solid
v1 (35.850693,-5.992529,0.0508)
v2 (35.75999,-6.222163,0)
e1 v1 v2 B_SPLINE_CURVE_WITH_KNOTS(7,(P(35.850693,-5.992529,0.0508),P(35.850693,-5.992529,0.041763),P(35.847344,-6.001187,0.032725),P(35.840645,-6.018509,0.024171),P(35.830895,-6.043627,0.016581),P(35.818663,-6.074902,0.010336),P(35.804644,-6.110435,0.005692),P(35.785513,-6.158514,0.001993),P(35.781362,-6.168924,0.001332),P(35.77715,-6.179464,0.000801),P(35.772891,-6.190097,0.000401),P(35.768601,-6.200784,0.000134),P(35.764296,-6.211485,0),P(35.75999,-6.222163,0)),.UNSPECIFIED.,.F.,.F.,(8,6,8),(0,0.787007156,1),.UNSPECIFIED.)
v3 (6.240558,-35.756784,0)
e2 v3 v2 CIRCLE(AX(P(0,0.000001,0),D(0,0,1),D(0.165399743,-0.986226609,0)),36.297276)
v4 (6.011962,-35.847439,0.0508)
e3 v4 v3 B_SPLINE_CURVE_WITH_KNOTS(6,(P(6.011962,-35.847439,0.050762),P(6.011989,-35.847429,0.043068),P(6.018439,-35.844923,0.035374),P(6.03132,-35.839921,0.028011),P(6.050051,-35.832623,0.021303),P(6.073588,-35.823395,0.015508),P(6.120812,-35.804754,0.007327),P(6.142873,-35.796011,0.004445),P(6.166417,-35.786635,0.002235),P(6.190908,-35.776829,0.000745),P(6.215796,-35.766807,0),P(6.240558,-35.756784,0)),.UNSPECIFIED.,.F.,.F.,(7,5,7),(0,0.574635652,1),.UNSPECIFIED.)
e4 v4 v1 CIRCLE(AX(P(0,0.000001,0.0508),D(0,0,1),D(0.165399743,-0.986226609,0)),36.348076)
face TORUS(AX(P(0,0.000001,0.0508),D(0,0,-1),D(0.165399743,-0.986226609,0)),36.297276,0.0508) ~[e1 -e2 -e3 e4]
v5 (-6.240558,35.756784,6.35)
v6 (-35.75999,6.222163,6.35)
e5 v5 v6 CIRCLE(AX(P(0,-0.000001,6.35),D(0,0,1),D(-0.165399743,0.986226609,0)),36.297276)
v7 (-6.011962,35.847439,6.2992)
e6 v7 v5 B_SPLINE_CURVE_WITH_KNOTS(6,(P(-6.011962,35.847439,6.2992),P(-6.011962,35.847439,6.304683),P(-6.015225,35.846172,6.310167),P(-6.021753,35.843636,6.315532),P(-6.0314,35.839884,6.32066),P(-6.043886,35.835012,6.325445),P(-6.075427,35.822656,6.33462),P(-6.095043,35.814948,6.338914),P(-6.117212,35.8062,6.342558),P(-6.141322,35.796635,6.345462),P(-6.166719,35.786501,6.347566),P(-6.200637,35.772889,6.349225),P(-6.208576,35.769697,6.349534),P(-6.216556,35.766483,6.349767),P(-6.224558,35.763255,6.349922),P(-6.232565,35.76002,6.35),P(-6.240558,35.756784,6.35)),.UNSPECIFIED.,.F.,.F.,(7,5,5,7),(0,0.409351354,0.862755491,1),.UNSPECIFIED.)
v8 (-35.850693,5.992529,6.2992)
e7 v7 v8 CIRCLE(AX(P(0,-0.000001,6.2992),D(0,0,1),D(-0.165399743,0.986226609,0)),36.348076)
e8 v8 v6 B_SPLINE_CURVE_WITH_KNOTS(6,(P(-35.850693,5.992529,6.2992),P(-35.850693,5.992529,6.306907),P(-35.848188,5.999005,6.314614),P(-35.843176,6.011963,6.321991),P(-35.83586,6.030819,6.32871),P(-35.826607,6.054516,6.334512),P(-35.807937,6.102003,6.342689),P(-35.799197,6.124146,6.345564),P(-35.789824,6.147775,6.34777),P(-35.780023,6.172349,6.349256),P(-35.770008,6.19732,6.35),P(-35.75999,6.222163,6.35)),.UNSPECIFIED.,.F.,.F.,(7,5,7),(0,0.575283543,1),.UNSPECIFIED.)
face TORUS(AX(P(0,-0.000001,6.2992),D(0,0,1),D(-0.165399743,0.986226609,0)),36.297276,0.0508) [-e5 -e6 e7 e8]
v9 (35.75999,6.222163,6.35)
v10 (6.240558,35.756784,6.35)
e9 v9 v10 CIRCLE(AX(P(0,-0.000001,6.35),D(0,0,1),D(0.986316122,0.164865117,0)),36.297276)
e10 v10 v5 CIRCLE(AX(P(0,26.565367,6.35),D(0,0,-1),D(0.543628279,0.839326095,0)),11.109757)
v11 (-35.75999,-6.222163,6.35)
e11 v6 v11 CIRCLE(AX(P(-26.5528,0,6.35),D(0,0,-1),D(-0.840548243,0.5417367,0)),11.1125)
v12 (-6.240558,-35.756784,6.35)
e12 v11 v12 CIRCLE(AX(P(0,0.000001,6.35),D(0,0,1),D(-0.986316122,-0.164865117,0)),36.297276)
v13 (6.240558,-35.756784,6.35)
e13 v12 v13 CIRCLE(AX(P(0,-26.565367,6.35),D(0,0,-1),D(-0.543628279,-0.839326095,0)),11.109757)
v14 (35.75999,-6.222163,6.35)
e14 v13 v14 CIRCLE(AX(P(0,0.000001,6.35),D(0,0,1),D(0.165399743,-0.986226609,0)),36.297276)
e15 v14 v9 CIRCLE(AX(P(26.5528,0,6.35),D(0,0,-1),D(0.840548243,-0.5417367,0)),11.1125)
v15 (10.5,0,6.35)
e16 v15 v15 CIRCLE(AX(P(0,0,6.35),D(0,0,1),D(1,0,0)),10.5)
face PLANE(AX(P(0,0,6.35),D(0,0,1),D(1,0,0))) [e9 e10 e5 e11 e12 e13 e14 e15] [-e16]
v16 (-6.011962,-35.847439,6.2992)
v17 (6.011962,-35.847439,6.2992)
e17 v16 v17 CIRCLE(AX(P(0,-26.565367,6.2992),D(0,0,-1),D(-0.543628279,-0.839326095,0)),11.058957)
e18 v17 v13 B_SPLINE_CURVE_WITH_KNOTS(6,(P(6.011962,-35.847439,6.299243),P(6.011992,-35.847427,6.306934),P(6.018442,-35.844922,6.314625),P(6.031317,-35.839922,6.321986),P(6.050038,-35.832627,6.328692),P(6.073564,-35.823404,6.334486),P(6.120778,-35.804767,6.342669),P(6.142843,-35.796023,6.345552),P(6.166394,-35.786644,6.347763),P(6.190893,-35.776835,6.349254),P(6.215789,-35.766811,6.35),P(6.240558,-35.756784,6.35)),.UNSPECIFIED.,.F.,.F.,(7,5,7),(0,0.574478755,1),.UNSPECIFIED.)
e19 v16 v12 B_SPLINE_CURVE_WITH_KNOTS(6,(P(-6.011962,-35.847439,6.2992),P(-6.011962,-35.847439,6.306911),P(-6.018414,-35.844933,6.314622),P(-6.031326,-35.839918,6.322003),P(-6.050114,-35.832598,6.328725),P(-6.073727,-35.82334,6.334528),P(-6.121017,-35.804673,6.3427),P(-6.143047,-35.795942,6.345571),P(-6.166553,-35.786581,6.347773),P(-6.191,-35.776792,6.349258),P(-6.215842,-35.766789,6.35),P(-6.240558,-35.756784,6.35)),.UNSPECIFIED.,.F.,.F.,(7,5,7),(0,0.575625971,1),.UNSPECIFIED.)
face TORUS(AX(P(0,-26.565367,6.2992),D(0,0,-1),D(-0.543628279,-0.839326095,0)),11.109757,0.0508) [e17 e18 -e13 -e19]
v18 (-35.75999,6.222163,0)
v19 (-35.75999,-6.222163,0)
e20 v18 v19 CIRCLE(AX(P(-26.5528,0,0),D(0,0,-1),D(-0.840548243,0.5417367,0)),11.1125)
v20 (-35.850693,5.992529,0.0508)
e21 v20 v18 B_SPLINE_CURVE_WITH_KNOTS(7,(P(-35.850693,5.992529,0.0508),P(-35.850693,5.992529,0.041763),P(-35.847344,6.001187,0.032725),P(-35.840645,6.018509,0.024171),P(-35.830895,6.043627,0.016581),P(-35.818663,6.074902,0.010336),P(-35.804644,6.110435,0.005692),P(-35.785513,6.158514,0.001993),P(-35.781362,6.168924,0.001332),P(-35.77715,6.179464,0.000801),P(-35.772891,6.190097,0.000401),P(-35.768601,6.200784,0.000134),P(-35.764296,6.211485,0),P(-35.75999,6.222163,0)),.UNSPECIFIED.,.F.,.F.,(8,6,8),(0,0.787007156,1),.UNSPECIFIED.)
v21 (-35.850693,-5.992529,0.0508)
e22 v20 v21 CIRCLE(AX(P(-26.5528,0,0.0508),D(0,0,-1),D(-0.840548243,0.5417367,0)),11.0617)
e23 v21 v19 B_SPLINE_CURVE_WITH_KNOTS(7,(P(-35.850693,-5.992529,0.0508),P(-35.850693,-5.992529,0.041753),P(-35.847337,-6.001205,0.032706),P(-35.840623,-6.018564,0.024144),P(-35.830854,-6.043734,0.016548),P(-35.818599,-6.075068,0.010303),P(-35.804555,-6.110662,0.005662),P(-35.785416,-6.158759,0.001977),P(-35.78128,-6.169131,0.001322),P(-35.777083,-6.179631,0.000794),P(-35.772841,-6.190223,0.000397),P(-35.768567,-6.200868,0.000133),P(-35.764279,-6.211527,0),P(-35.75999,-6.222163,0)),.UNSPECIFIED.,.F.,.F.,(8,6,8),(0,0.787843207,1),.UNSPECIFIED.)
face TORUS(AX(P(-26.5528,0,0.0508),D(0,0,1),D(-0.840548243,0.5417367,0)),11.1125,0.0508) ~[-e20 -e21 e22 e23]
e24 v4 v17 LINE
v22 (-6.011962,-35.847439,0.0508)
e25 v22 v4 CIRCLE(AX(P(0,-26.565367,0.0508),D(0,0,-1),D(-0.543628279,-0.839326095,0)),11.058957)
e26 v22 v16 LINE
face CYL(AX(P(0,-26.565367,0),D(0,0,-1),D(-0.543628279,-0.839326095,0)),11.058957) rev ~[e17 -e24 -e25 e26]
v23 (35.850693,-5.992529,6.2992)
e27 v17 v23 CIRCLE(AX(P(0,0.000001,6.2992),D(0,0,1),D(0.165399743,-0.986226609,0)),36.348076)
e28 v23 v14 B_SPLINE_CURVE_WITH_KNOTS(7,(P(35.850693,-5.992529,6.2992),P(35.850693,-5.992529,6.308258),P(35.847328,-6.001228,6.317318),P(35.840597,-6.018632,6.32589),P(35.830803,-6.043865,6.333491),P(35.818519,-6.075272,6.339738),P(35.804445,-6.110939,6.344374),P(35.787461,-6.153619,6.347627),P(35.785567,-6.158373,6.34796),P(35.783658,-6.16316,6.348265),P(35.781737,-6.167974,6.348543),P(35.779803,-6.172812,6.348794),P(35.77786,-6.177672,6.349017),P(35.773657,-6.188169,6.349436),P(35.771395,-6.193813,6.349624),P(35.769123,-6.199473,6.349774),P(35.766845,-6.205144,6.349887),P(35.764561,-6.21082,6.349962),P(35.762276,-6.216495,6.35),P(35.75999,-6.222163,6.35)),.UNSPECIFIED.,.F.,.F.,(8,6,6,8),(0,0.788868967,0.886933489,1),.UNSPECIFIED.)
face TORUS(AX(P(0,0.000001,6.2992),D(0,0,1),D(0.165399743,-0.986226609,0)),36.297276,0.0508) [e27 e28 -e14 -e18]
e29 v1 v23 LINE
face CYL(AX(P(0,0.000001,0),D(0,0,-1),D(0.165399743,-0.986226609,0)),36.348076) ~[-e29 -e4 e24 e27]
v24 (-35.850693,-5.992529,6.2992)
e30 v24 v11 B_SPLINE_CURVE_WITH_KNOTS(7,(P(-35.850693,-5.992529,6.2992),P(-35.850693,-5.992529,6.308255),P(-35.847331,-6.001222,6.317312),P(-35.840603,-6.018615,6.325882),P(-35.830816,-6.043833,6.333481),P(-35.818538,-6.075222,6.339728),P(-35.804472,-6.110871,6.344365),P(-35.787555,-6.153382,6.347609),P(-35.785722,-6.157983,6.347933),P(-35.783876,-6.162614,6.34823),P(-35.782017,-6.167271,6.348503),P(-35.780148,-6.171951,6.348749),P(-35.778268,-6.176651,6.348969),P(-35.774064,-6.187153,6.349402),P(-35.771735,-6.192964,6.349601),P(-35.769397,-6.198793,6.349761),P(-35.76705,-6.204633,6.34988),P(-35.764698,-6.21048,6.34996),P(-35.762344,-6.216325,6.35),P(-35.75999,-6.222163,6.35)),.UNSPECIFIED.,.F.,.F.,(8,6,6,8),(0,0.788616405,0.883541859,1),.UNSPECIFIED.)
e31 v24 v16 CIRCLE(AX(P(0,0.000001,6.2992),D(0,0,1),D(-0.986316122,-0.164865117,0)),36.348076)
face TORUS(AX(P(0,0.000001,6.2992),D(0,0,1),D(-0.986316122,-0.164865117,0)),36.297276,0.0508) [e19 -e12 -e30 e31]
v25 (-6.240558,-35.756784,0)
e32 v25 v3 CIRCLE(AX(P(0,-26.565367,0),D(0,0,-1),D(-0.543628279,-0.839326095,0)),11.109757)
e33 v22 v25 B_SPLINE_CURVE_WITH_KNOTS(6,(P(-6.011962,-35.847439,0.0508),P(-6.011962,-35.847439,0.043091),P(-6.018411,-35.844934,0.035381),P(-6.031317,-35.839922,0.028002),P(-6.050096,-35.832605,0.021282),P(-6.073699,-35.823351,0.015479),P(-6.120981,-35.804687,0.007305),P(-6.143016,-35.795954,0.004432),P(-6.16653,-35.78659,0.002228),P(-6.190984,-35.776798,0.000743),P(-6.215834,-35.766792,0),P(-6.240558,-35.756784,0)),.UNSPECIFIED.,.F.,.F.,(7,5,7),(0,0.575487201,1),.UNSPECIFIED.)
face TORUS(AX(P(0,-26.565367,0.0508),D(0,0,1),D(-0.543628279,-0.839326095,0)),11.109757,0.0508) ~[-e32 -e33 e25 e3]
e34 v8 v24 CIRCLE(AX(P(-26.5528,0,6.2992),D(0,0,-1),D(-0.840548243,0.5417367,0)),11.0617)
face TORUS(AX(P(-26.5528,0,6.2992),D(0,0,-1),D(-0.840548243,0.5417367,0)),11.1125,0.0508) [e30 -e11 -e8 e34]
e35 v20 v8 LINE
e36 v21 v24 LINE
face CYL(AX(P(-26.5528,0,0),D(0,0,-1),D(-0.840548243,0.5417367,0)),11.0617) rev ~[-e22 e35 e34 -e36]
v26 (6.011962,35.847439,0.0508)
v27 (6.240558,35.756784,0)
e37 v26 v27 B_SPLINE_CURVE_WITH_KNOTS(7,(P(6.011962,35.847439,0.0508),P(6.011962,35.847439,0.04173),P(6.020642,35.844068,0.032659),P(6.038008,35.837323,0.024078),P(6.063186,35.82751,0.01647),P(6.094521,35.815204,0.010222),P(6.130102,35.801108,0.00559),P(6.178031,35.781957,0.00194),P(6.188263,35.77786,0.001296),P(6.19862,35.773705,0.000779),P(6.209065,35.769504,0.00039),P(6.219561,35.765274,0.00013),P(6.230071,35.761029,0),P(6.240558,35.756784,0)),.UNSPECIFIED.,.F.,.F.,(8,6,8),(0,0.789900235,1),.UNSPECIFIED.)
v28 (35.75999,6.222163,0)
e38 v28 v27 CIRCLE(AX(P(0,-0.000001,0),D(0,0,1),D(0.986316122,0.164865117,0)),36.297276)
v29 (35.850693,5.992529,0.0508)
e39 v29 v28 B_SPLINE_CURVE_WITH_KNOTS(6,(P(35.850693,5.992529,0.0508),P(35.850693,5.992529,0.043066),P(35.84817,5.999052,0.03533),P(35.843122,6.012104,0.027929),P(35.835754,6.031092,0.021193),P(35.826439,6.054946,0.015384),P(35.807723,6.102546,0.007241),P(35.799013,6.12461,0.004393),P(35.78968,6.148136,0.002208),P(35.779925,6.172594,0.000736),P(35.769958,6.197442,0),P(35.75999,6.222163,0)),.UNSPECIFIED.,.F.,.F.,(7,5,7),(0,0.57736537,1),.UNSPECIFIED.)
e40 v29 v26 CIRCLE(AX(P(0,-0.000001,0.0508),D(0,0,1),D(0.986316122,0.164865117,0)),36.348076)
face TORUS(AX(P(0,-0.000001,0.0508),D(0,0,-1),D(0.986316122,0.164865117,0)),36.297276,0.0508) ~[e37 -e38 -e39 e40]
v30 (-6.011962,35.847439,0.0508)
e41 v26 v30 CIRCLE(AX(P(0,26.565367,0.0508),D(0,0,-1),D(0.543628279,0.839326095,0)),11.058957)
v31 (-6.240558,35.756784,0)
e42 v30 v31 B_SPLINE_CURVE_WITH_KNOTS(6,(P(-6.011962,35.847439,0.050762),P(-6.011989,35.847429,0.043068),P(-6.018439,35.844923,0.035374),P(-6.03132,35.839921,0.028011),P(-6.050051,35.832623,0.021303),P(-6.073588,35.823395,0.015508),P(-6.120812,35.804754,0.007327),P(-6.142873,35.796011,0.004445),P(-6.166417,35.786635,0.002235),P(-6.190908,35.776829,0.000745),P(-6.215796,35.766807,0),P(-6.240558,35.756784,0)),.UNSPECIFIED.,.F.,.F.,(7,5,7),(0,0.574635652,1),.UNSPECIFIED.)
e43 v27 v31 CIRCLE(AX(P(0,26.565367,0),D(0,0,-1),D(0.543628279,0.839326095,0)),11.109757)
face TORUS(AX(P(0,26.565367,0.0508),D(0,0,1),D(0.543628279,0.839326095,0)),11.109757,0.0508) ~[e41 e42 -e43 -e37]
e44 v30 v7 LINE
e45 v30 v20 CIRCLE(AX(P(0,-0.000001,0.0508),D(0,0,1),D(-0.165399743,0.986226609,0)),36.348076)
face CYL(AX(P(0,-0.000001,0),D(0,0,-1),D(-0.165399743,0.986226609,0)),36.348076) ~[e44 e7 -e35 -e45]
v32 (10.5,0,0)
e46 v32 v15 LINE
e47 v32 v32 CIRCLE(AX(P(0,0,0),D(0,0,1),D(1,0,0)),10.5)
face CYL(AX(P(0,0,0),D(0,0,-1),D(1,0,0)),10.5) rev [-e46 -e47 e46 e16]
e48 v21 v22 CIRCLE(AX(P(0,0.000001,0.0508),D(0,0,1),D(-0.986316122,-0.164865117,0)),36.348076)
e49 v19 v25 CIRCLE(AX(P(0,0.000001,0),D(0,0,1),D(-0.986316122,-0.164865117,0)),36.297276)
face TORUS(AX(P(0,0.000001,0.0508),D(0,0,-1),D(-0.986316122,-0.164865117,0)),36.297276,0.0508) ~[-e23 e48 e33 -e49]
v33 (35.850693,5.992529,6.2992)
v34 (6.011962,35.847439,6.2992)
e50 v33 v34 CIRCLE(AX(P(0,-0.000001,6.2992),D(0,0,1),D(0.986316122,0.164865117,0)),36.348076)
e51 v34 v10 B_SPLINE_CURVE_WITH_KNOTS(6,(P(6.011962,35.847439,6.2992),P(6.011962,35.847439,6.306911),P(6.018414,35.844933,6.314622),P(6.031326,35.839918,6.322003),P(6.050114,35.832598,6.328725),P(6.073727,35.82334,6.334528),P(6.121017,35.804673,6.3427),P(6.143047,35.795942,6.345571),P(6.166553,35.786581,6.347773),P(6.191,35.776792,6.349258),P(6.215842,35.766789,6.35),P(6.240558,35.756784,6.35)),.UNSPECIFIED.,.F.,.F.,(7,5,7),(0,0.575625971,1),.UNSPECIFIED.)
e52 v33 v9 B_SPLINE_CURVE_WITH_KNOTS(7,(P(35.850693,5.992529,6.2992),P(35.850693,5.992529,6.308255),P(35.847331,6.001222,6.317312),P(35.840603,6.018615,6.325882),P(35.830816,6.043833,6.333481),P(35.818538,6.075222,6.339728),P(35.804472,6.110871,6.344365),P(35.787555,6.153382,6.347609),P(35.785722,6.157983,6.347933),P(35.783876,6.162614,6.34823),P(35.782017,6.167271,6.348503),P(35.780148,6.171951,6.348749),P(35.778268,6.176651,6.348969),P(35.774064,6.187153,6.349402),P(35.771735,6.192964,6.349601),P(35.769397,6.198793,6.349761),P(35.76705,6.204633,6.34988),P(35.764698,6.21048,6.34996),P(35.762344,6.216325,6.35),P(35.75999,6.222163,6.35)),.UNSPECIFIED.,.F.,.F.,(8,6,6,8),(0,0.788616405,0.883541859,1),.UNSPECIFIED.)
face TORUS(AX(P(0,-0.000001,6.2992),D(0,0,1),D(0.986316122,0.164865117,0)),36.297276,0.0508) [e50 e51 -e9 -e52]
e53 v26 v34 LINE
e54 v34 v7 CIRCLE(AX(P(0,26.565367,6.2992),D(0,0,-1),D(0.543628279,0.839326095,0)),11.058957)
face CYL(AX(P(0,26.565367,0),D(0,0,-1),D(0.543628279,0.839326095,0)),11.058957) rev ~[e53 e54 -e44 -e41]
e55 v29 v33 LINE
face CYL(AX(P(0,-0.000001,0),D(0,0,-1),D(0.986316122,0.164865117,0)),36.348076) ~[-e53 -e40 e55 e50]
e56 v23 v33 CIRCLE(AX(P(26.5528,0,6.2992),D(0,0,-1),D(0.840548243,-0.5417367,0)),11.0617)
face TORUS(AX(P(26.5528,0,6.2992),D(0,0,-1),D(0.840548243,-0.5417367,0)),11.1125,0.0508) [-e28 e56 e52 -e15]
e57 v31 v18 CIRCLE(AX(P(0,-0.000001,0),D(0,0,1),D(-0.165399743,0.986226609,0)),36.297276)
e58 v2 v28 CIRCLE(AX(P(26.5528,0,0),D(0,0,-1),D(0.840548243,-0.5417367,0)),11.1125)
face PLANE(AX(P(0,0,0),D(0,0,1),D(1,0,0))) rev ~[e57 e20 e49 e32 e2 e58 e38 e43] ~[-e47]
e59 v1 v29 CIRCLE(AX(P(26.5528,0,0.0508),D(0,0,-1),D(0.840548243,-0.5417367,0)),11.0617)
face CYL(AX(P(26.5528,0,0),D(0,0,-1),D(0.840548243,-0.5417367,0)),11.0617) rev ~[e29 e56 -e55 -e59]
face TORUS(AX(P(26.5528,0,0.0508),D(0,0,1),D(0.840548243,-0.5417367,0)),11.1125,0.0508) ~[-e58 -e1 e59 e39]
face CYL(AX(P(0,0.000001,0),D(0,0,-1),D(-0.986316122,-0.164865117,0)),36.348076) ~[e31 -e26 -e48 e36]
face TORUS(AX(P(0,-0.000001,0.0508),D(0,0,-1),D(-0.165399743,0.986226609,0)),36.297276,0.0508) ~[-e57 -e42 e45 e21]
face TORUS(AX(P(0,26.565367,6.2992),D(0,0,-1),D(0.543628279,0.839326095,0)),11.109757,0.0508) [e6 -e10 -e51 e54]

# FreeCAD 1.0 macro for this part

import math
import FreeCAD as App
import Part
import Sketcher

V = App.Vector
Q = App.Units.Quantity


def edges_at(feature, points):
    """Names of the edges that pass closest to the given points."""
    edges = feature.Shape.Edges
    near = lambda p: min(range(len(edges)), key=lambda i: edges[i].distToShape(Part.Vertex(*p))[0])
    return sorted({f"Edge{near(p) + 1}" for p in points})

doc = App.newDocument("Part")
body = doc.addObject("PartDesign::Body", "Body")

sketch1 = doc.addObject("Sketcher::SketchObject", "Sketch")
body.addObject(sketch1)
sketch1.AttachmentSupport = (doc.XY_Plane, [""])
sketch1.MapMode = "FlatFace"
sketch1.addGeometry(Part.ArcOfCircle(Part.Circle(V(-26.5528, 0, 0), V(0, 0, 1), 11.0617), math.radians(-147.198058), math.radians(147.198058)), False)
sketch1.addGeometry(Part.ArcOfCircle(Part.Circle(V(0, 0.000001, 0), V(0, 0, 1), 36.348076), math.radians(-170.510601), math.radians(-99.520457)), False)
sketch1.addGeometry(Part.ArcOfCircle(Part.Circle(V(0, -26.565367, 0), V(0, 0, 1), 11.058957), math.radians(-57.069025), math.radians(237.069025)), False)
sketch1.addGeometry(Part.ArcOfCircle(Part.Circle(V(0, 0.000001, 0), V(0, 0, 1), 36.348076), math.radians(-80.479543), math.radians(-9.489399)), False)
sketch1.addGeometry(Part.ArcOfCircle(Part.Circle(V(26.5528, 0, 0), V(0, 0, 1), 11.0617), math.radians(32.801942), math.radians(327.198058)), False)
sketch1.addGeometry(Part.ArcOfCircle(Part.Circle(V(0, -0.000001, 0), V(0, 0, 1), 36.348076), math.radians(9.489399), math.radians(80.479543)), False)
sketch1.addGeometry(Part.ArcOfCircle(Part.Circle(V(0, 26.565367, 0), V(0, 0, 1), 11.058957), math.radians(122.930975), math.radians(417.069025)), False)
sketch1.addGeometry(Part.ArcOfCircle(Part.Circle(V(0, -0.000001, 0), V(0, 0, 1), 36.348076), math.radians(99.520457), math.radians(170.510601)), False)
sketch1.addGeometry(Part.Circle(V(0, 0, 0), V(0, 0, 1), 10.5), False)
sketch1.addConstraint(Sketcher.Constraint("Coincident", 0, 1, 1, 1))
sketch1.addConstraint(Sketcher.Constraint("Coincident", 1, 2, 2, 2))
sketch1.addConstraint(Sketcher.Constraint("Coincident", 2, 1, 3, 1))
sketch1.addConstraint(Sketcher.Constraint("Coincident", 3, 2, 4, 2))
sketch1.addConstraint(Sketcher.Constraint("Coincident", 4, 1, 5, 1))
sketch1.addConstraint(Sketcher.Constraint("Coincident", 5, 2, 6, 2))
sketch1.addConstraint(Sketcher.Constraint("Coincident", 6, 1, 7, 1))
sketch1.addConstraint(Sketcher.Constraint("Coincident", 7, 2, 0, 2))
sketch1.addConstraint(Sketcher.Constraint("Coincident", 1, 3, -1, 1))
sketch1.addConstraint(Sketcher.Constraint("Coincident", 3, 3, -1, 1))
sketch1.addConstraint(Sketcher.Constraint("Coincident", 5, 3, -1, 1))
sketch1.addConstraint(Sketcher.Constraint("Coincident", 7, 3, -1, 1))
sketch1.addConstraint(Sketcher.Constraint("Coincident", 8, 3, -1, 1))
sketch1.addConstraint(Sketcher.Constraint("Equal", 1, 3))
sketch1.addConstraint(Sketcher.Constraint("Equal", 0, 4))
sketch1.addConstraint(Sketcher.Constraint("Equal", 3, 5))
sketch1.addConstraint(Sketcher.Constraint("Equal", 2, 6))
sketch1.addConstraint(Sketcher.Constraint("Equal", 5, 7))
sketch1.addConstraint(Sketcher.Constraint("Symmetric", 0, 3, 4, 3, -1, 1))
sketch1.addConstraint(Sketcher.Constraint("Symmetric", 2, 3, 6, 3, -1, 1))
sketch1.addConstraint(Sketcher.Constraint("PointOnObject", 0, 3, -1))
sketch1.addConstraint(Sketcher.Constraint("PointOnObject", 2, 3, -2))
sketch1.addConstraint(Sketcher.Constraint("Radius", 0, Q("0.4355 in")))
sketch1.addConstraint(Sketcher.Constraint("Diameter", 8, 21.0))
sketch1.addConstraint(Sketcher.Constraint("Radius", 1, 36.348076))
sketch1.addConstraint(Sketcher.Constraint("Radius", 2, 11.058957))
sketch1.addConstraint(Sketcher.Constraint("DistanceX", 0, 3, -1, 1, 26.5528))
sketch1.addConstraint(Sketcher.Constraint("DistanceY", 1, 2, -1, 1, 35.847439))
pad1 = doc.addObject("PartDesign::Pad", "Pad")
body.addObject(pad1)
pad1.Profile = sketch1
pad1.Length = Q("0.25 in")
doc.recompute()

fillet = doc.addObject("PartDesign::Fillet", "Fillet")
body.addObject(fillet)
fillet.Base = (pad1, edges_at(pad1, [
    (-25.709, 25.695, 0),
    (25.709, 25.695, 0),
    (25.709, -25.695, 0),
    (0, -15.506, 0),
    (15.491, 0, 0),
    (0, 15.506, 0),
    (-15.491, 0, 0),
    (-25.709, -25.695, 0),
    (-25.709, -25.695, 6.35),
    (-25.709, 25.695, 6.35),
    (25.709, 25.695, 6.35),
    (15.491, 0, 6.35),
    (0, 15.506, 6.35),
    (-15.491, 0, 6.35),
    (0, -15.506, 6.35),
    (25.709, -25.695, 6.35),
]))
fillet.Radius = Q("0.002 in")

doc.recompute()
